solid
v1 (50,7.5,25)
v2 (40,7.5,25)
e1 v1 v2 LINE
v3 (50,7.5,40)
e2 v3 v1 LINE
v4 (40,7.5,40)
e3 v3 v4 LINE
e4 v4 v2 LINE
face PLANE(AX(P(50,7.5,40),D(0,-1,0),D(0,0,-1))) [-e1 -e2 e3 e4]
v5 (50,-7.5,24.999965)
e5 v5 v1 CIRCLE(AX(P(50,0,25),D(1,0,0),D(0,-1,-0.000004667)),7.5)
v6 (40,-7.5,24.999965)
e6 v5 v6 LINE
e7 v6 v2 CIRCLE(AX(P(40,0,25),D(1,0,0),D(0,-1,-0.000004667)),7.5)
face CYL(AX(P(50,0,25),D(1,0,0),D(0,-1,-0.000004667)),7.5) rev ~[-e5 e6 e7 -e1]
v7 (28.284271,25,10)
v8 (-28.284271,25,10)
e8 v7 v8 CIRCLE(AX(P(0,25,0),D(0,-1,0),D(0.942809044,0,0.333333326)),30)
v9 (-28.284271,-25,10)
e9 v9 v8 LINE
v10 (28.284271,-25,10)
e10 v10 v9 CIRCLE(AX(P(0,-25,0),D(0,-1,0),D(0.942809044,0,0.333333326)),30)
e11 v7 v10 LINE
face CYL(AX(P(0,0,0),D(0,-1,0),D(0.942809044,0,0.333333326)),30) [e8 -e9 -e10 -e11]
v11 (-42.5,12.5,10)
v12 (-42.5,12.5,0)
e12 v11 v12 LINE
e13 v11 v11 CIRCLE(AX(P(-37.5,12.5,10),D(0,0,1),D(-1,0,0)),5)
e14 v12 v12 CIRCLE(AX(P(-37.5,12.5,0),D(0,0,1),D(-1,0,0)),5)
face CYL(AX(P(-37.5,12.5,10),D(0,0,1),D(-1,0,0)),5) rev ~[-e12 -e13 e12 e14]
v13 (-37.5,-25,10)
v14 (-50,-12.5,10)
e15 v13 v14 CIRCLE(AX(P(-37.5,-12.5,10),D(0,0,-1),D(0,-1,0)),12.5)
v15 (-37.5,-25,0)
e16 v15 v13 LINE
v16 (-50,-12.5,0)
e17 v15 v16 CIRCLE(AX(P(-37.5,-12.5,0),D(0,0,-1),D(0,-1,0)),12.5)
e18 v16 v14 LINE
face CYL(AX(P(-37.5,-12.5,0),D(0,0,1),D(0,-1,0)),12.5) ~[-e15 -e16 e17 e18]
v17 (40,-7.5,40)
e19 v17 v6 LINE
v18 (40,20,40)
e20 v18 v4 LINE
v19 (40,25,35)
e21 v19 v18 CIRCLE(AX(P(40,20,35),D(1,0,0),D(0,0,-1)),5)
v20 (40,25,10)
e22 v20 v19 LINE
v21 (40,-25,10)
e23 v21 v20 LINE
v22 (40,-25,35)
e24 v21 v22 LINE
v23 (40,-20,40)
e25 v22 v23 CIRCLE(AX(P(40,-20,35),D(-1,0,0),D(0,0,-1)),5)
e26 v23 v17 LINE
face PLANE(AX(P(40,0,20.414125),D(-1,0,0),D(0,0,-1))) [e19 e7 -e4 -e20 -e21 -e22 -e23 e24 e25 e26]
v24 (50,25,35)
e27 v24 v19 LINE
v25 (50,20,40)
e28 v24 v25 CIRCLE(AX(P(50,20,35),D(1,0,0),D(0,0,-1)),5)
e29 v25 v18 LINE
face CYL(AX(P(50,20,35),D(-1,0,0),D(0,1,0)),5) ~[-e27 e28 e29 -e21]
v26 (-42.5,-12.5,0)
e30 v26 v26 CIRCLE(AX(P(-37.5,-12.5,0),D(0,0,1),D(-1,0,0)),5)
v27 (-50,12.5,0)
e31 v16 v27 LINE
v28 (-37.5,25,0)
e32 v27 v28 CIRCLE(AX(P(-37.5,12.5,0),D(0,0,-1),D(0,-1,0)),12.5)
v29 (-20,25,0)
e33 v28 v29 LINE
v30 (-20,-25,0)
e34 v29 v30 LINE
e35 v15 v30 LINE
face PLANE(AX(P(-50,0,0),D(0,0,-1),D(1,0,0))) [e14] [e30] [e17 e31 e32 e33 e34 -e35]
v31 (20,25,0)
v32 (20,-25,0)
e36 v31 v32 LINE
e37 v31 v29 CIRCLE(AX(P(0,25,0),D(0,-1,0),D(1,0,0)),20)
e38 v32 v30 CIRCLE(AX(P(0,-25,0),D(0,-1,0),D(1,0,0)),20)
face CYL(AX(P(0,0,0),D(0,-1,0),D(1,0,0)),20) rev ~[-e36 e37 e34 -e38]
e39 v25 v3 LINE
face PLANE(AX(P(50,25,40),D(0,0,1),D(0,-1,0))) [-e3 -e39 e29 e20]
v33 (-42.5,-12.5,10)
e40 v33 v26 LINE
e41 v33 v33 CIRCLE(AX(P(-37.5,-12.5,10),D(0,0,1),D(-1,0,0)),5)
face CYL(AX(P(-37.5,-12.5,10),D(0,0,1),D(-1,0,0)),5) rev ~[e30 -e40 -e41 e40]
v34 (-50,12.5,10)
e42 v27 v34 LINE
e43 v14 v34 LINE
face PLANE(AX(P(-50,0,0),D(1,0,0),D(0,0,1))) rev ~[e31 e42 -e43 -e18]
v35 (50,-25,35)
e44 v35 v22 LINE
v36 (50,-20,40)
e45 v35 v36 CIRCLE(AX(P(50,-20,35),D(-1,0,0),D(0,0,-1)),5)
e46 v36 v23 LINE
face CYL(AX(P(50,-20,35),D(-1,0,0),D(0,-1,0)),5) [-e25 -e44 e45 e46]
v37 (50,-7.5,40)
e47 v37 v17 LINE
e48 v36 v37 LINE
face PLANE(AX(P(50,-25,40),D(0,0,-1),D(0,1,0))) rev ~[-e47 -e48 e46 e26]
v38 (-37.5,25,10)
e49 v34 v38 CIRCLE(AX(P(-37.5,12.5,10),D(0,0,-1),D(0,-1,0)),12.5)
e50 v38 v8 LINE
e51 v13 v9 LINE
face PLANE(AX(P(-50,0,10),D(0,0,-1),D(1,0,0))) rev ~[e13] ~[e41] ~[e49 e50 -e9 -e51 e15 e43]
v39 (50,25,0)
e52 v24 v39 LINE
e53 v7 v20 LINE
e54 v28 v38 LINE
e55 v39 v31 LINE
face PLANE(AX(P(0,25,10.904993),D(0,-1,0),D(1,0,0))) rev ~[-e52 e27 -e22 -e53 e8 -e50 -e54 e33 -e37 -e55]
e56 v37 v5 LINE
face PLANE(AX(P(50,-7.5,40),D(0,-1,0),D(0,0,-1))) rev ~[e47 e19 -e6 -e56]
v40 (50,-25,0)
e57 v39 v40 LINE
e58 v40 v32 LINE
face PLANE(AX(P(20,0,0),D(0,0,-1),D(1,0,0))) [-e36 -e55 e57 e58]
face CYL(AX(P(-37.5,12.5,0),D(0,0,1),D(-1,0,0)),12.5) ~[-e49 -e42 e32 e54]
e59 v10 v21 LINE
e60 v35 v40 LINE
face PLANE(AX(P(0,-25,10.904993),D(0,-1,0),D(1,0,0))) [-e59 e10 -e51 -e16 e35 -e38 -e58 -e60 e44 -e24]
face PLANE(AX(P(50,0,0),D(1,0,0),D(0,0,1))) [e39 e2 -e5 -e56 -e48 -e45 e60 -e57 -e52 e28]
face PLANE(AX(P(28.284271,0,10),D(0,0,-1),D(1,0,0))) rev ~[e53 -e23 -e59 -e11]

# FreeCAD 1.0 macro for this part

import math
import FreeCAD as App
import Part
import Sketcher

V = App.Vector
Q = App.Units.Quantity


def edges_at(feature, points):
    """Names of the edges that pass closest to the given points."""
    edges = feature.Shape.Edges
    near = lambda p: min(range(len(edges)), key=lambda i: edges[i].distToShape(Part.Vertex(*p))[0])
    return sorted({f"Edge{near(p) + 1}" for p in points})

doc = App.newDocument("Part")
body = doc.addObject("PartDesign::Body", "Body")

sketch1 = body.newObject("Sketcher::SketchObject", "Sketch")
sketch1.AttachmentSupport = (doc.getObject("XZ_Plane"), [""])
sketch1.MapMode = "FlatFace"
sketch1.addGeometry(Part.LineSegment(V(-50, 0, 0), V(-20, 0, 0)), False)
sketch1.addGeometry(Part.ArcOfCircle(Part.Circle(V(0, 0, 0), V(0, 0, 1), 20), math.radians(0), math.radians(180)), False)
sketch1.addGeometry(Part.LineSegment(V(20, 0, 0), V(50, 0, 0)), False)
sketch1.addGeometry(Part.LineSegment(V(50, 0, 0), V(50, 10, 0)), False)
sketch1.addGeometry(Part.LineSegment(V(50, 10, 0), V(28, 10, 0)), False)
sketch1.addGeometry(Part.ArcOfCircle(Part.Circle(V(0, 0, 0), V(0, 0, 1), 30), math.radians(19), math.radians(161)), False)
sketch1.addGeometry(Part.LineSegment(V(-28, 10, 0), V(-50, 10, 0)), False)
sketch1.addGeometry(Part.LineSegment(V(-50, 10, 0), V(-50, 0, 0)), False)
sketch1.addConstraint(Sketcher.Constraint("Coincident", 0, 2, 1, 2))
sketch1.addConstraint(Sketcher.Constraint("Coincident", 1, 1, 2, 1))
sketch1.addConstraint(Sketcher.Constraint("Coincident", 2, 2, 3, 1))
sketch1.addConstraint(Sketcher.Constraint("Coincident", 3, 2, 4, 1))
sketch1.addConstraint(Sketcher.Constraint("Coincident", 4, 2, 5, 1))
sketch1.addConstraint(Sketcher.Constraint("Coincident", 5, 2, 6, 1))
sketch1.addConstraint(Sketcher.Constraint("Coincident", 6, 2, 7, 1))
sketch1.addConstraint(Sketcher.Constraint("Coincident", 7, 2, 0, 1))
sketch1.addConstraint(Sketcher.Constraint("Horizontal", 0))
sketch1.addConstraint(Sketcher.Constraint("Horizontal", 2))
sketch1.addConstraint(Sketcher.Constraint("Vertical", 3))
sketch1.addConstraint(Sketcher.Constraint("Horizontal", 4))
sketch1.addConstraint(Sketcher.Constraint("Horizontal", 6))
sketch1.addConstraint(Sketcher.Constraint("Vertical", 7))
sketch1.addConstraint(Sketcher.Constraint("Coincident", 1, 3, -1, 1))
sketch1.addConstraint(Sketcher.Constraint("Coincident", 5, 3, -1, 1))
sketch1.addConstraint(Sketcher.Constraint("Symmetric", 2, 2, 7, 2, -1, 1))
sketch1.addConstraint(Sketcher.Constraint("PointOnObject", 0, 2, -1))
sketch1.addConstraint(Sketcher.Constraint("Horizontal", 4, 2, 5, 2))
sketch1.addConstraint(Sketcher.Constraint("Radius", 1, Q("20 mm")))
sketch1.addConstraint(Sketcher.Constraint("Radius", 5, Q("30 mm")))
sketch1.addConstraint(Sketcher.Constraint("DistanceX", 0, 1, 0, 2, Q("30 mm")))
sketch1.addConstraint(Sketcher.Constraint("DistanceY", 3, 1, 3, 2, Q("10 mm")))
pad1 = body.newObject("PartDesign::Pad", "Pad")
pad1.Profile = sketch1
pad1.Length = 50
pad1.Midplane = True

sketch2 = body.newObject("Sketcher::SketchObject", "Sketch001")
sketch2.AttachmentSupport = (doc.getObject("YZ_Plane"), [""])
sketch2.MapMode = "FlatFace"
sketch2.AttachmentOffset = App.Placement(V(0, 0, 50), App.Rotation())
sketch2.addGeometry(Part.LineSegment(V(-25, 40, 0), V(-25, 0, 0)), False)
sketch2.addGeometry(Part.LineSegment(V(-25, 0, 0), V(25, 0, 0)), False)
sketch2.addGeometry(Part.LineSegment(V(25, 0, 0), V(25, 40, 0)), False)
sketch2.addGeometry(Part.LineSegment(V(25, 40, 0), V(8, 40, 0)), False)
sketch2.addGeometry(Part.LineSegment(V(8, 40, 0), V(8, 25, 0)), False)
sketch2.addGeometry(Part.ArcOfCircle(Part.Circle(V(0, 25, 0), V(0, 0, 1), 8), math.radians(-180), math.radians(0)), False)
sketch2.addGeometry(Part.LineSegment(V(-8, 25, 0), V(-8, 40, 0)), False)
sketch2.addGeometry(Part.LineSegment(V(-8, 40, 0), V(-25, 40, 0)), False)
sketch2.addConstraint(Sketcher.Constraint("Coincident", 0, 2, 1, 1))
sketch2.addConstraint(Sketcher.Constraint("Coincident", 1, 2, 2, 1))
sketch2.addConstraint(Sketcher.Constraint("Coincident", 2, 2, 3, 1))
sketch2.addConstraint(Sketcher.Constraint("Coincident", 3, 2, 4, 1))
sketch2.addConstraint(Sketcher.Constraint("Tangent", 4, 2, 5, 2))
sketch2.addConstraint(Sketcher.Constraint("Coincident", 5, 1, 6, 1))
sketch2.addConstraint(Sketcher.Constraint("Coincident", 6, 2, 7, 1))
sketch2.addConstraint(Sketcher.Constraint("Coincident", 7, 2, 0, 1))
sketch2.addConstraint(Sketcher.Constraint("Vertical", 0))
sketch2.addConstraint(Sketcher.Constraint("Horizontal", 1))
sketch2.addConstraint(Sketcher.Constraint("Vertical", 2))
sketch2.addConstraint(Sketcher.Constraint("Horizontal", 3))
sketch2.addConstraint(Sketcher.Constraint("Vertical", 4))
sketch2.addConstraint(Sketcher.Constraint("Vertical", 6))
sketch2.addConstraint(Sketcher.Constraint("Horizontal", 7))
sketch2.addConstraint(Sketcher.Constraint("Symmetric", 0, 2, 1, 2, -1, 1))
sketch2.addConstraint(Sketcher.Constraint("Symmetric", 3, 2, 6, 2, -2))
sketch2.addConstraint(Sketcher.Constraint("Radius", 5, Q("7.5 mm")))
sketch2.addConstraint(Sketcher.Constraint("DistanceX", 1, 1, 1, 2, Q("50 mm")))
sketch2.addConstraint(Sketcher.Constraint("DistanceY", 0, 2, 0, 1, Q("40 mm")))
sketch2.addConstraint(Sketcher.Constraint("DistanceY", 4, 2, 4, 1, Q("15 mm")))
sketch2.addConstraint(Sketcher.Constraint("DistanceY", 6, 1, 6, 2, Q("15.000035 mm")))
pad2 = body.newObject("PartDesign::Pad", "Pad001")
pad2.Profile = sketch2
pad2.Length = 10
pad2.Reversed = True
doc.recompute()

fillet = body.newObject("PartDesign::Fillet", "Fillet")
fillet.Base = (pad2, edges_at(pad2, [(-50, -25, 5)]))
fillet.Radius = 12.5
doc.recompute()

fillet2 = body.newObject("PartDesign::Fillet", "Fillet001")
fillet2.Base = (fillet, edges_at(fillet, [(-50, 25, 5)]))
fillet2.Radius = 12.5
doc.recompute()

fillet3 = body.newObject("PartDesign::Fillet", "Fillet002")
fillet3.Base = (fillet2, edges_at(fillet2, [(45, -25, 40)]))
fillet3.Radius = 5
doc.recompute()

fillet4 = body.newObject("PartDesign::Fillet", "Fillet003")
fillet4.Base = (fillet3, edges_at(fillet3, [(45, 25, 40)]))
fillet4.Radius = 5

sketch3 = body.newObject("Sketcher::SketchObject", "Sketch002")
sketch3.AttachmentSupport = (doc.getObject("XY_Plane"), [""])
sketch3.MapMode = "FlatFace"
sketch3.AttachmentOffset = App.Placement(V(0, 0, 10), App.Rotation())
sketch3.addGeometry(Part.Circle(V(-38, -12, 0), V(0, 0, 1), 5), False)
sketch3.addGeometry(Part.Circle(V(-38, 12, 0), V(0, 0, 1), 5), False)
sketch3.addConstraint(Sketcher.Constraint("Equal", 0, 1))
sketch3.addConstraint(Sketcher.Constraint("Symmetric", 0, 3, 1, 3, -1))
sketch3.addConstraint(Sketcher.Constraint("Diameter", 0, Q("10 mm")))
sketch3.addConstraint(Sketcher.Constraint("DistanceY", 0, 3, 1, 3, Q("25 mm")))
sketch3.addConstraint(Sketcher.Constraint("DistanceX", 0, 3, -1, 1, Q("37.5 mm")))
pocket1 = body.newObject("PartDesign::Pocket", "Pocket")
pocket1.Profile = sketch3
pocket1.Type = "ThroughAll"

doc.recompute()
